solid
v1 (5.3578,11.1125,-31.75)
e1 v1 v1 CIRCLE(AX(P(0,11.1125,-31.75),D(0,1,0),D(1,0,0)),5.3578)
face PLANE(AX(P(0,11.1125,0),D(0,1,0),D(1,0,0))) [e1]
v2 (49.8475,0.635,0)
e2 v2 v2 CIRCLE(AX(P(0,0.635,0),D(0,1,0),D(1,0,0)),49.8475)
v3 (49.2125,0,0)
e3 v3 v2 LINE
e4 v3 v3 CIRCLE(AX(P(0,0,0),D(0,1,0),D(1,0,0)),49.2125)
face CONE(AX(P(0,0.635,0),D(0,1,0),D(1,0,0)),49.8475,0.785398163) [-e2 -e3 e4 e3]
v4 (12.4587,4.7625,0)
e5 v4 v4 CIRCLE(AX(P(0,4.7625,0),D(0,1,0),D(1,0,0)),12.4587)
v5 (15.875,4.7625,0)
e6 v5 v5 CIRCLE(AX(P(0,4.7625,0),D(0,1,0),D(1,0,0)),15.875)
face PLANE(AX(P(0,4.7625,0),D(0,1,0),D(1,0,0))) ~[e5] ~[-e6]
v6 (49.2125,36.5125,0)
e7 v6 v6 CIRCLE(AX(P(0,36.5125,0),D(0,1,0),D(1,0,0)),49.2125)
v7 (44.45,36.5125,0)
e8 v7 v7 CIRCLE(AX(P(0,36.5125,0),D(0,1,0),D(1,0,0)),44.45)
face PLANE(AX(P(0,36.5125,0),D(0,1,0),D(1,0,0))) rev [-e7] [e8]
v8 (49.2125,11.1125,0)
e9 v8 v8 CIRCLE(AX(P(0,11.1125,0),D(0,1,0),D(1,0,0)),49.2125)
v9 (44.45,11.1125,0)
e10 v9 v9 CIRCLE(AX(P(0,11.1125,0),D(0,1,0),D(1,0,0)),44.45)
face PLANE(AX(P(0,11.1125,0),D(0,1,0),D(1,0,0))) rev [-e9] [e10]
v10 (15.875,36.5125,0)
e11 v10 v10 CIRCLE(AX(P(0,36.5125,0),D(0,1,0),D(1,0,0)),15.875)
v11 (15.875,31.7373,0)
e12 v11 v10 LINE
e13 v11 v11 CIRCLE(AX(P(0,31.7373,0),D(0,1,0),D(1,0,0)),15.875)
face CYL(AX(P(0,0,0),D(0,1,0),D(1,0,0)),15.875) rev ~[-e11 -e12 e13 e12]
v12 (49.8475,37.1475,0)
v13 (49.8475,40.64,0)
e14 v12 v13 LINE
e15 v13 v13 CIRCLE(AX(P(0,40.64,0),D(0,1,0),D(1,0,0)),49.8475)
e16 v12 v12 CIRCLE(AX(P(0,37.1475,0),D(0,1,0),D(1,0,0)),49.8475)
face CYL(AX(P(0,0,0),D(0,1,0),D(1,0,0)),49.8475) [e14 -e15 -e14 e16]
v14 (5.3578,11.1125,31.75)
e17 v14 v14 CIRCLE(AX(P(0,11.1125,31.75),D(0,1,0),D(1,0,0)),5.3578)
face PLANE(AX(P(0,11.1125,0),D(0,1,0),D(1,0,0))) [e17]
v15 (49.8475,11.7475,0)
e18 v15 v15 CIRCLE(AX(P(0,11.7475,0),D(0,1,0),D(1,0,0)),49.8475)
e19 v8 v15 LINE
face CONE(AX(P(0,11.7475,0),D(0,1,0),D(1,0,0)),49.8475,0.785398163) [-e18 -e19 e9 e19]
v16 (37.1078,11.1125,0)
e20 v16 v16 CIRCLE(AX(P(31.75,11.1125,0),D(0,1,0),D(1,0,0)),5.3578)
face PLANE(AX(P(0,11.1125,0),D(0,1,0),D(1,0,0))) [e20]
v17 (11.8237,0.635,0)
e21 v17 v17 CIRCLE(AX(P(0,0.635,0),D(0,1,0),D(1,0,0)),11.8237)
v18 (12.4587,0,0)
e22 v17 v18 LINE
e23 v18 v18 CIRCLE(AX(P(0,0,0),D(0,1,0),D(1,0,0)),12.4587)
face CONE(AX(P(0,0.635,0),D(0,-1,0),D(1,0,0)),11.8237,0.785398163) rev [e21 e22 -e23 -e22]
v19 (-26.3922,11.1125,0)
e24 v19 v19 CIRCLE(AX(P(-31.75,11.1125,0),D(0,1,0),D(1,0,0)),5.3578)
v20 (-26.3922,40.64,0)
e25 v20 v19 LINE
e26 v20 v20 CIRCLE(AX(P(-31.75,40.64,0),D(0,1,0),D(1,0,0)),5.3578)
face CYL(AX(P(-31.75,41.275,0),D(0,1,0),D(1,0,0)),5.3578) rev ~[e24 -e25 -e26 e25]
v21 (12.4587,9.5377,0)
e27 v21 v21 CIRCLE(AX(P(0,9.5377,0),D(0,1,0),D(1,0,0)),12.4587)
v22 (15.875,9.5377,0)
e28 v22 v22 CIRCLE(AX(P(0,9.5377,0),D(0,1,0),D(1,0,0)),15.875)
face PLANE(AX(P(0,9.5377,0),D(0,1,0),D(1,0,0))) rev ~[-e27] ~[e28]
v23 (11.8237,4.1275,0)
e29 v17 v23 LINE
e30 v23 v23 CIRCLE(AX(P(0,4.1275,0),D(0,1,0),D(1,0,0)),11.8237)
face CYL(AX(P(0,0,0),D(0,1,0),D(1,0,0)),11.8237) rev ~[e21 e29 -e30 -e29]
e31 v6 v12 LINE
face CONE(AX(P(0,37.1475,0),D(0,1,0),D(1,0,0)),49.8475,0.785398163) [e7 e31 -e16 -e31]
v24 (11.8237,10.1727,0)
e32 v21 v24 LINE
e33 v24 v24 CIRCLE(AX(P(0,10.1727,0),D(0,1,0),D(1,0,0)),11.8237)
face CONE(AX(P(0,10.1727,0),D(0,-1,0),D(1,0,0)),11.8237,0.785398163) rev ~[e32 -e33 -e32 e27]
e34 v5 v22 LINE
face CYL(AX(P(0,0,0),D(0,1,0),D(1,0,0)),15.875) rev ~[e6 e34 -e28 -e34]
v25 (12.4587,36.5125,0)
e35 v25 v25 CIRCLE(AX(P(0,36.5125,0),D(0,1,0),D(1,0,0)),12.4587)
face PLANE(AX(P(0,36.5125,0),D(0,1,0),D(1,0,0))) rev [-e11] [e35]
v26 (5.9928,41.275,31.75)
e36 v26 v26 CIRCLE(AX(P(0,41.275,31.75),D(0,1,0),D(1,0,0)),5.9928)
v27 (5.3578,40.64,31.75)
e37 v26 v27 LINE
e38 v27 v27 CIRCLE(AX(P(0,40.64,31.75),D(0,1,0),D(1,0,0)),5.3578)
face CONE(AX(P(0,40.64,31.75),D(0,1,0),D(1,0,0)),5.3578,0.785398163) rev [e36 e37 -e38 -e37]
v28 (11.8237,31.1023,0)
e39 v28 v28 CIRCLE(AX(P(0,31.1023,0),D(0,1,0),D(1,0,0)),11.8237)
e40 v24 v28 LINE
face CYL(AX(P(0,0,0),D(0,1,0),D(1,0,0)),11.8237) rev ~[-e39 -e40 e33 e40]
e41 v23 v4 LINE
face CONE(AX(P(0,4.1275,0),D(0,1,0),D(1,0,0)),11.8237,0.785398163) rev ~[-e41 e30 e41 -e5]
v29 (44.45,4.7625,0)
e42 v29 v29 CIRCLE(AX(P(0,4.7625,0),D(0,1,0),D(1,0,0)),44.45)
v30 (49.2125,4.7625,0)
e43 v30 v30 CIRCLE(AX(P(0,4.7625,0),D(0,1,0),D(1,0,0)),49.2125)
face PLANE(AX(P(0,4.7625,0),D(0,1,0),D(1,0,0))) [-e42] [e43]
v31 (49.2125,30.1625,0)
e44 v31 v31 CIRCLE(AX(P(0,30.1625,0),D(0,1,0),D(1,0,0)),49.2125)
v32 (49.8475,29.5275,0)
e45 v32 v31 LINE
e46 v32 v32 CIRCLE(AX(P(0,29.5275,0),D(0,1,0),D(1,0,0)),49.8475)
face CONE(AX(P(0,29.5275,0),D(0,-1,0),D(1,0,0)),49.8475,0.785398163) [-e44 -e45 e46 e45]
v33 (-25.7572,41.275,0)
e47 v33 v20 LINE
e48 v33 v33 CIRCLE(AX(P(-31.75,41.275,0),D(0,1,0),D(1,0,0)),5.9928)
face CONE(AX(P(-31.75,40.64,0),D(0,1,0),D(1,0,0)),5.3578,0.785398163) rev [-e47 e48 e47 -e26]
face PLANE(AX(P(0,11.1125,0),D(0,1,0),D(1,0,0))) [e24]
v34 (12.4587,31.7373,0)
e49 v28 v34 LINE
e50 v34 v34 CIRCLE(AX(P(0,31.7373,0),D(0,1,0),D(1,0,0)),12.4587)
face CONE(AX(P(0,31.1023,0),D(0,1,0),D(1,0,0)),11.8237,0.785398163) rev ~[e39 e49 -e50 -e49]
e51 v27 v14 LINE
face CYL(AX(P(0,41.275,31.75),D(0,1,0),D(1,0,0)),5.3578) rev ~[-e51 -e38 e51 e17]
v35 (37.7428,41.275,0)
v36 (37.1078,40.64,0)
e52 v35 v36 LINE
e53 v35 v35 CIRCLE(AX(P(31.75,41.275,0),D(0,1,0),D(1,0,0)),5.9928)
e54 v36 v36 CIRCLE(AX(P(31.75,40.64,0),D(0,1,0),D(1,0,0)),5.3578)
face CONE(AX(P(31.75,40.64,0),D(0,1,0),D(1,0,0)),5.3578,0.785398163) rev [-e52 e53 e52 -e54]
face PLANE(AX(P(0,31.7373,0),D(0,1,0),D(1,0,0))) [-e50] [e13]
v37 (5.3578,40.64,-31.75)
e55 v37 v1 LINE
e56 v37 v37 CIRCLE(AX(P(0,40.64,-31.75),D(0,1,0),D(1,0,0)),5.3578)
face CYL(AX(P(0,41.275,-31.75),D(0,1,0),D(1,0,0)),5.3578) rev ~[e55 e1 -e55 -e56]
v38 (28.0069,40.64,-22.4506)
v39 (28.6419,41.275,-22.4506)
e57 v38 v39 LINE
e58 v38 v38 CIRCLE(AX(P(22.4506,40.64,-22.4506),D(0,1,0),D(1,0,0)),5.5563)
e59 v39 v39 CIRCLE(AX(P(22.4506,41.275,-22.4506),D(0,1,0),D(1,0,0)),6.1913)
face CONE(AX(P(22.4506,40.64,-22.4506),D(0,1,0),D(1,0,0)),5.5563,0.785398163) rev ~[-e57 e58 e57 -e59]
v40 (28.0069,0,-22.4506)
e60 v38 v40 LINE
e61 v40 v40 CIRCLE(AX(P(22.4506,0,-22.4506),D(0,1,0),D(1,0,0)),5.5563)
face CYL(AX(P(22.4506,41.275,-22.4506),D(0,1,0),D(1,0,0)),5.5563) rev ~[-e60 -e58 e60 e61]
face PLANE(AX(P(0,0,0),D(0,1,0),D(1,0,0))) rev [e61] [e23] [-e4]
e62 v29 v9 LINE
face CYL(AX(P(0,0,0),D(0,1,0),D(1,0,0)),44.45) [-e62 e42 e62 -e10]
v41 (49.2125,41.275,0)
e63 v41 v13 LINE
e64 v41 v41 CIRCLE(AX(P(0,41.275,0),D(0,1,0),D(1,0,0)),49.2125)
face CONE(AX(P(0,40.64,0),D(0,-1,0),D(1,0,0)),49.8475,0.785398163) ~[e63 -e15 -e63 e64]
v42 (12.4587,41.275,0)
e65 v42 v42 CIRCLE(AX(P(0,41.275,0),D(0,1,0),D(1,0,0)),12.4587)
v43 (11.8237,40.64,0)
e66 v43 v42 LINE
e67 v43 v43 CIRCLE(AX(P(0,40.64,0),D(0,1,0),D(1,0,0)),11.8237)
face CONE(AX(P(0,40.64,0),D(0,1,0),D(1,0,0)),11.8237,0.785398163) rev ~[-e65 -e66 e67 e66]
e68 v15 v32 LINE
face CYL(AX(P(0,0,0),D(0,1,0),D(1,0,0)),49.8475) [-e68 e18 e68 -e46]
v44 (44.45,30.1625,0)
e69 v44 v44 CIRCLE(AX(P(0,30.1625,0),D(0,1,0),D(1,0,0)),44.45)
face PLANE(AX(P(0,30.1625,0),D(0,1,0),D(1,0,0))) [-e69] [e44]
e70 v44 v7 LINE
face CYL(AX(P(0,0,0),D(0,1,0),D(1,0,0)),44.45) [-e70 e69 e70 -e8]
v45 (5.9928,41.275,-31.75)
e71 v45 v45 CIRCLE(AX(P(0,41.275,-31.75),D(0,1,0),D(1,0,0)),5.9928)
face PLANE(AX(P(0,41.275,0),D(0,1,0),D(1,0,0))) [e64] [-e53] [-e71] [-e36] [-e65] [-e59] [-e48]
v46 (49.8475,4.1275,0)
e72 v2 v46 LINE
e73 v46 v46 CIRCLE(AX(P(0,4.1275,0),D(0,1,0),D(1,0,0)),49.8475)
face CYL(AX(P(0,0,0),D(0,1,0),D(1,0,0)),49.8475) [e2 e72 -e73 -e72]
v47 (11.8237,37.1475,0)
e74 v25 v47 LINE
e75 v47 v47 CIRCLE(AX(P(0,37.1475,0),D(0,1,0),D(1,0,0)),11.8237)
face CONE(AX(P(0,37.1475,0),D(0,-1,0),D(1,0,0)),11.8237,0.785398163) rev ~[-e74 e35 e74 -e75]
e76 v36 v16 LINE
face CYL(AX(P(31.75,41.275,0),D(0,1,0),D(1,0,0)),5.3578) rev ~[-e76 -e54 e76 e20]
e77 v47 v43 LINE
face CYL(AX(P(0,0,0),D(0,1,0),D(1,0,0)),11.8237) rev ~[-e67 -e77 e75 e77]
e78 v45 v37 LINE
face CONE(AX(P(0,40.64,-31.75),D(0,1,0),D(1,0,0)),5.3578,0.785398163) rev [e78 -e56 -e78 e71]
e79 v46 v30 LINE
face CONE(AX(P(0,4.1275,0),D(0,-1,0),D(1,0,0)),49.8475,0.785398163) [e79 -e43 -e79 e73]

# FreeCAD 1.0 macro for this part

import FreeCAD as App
import Part
import Sketcher

V = App.Vector
Q = App.Units.Quantity


def edges_at(feature, points):
    """Names of the edges that pass closest to the given points."""
    edges = feature.Shape.Edges
    near = lambda p: min(range(len(edges)), key=lambda i: edges[i].distToShape(Part.Vertex(*p))[0])
    return sorted({f"Edge{near(p) + 1}" for p in points})

doc = App.newDocument("Part")
body = doc.addObject("PartDesign::Body", "Body")

# Sketch on XY plane
sketch1 = doc.addObject("Sketcher::SketchObject", "Sketch")
body.addObject(sketch1)
sketch1.AttachmentSupport = (doc.XY_Plane, [""])
sketch1.MapMode = "FlatFace"
sketch1.addGeometry([
    Part.LineSegment(V(11.8, 4.8, 0), V(11.8, 0, 0)),  # 0
    Part.LineSegment(V(11.8, 0, 0), V(49.8, 0, 0)),  # 1
    Part.LineSegment(V(49.8, 0, 0), V(49.8, 4.8, 0)),  # 2
    Part.LineSegment(V(49.8, 4.8, 0), V(44.5, 4.8, 0)),  # 3
    Part.LineSegment(V(44.5, 4.8, 0), V(44.5, 11.1, 0)),  # 4
    Part.LineSegment(V(44.5, 11.1, 0), V(49.8, 11.1, 0)),  # 5
    Part.LineSegment(V(49.8, 11.1, 0), V(49.8, 30.2, 0)),  # 6
    Part.LineSegment(V(49.8, 30.2, 0), V(44.5, 30.2, 0)),  # 7
    Part.LineSegment(V(44.5, 30.2, 0), V(44.5, 36.5, 0)),  # 8
    Part.LineSegment(V(44.5, 36.5, 0), V(49.8, 36.5, 0)),  # 9
    Part.LineSegment(V(49.8, 36.5, 0), V(49.8, 41.3, 0)),  # 10
    Part.LineSegment(V(49.8, 41.3, 0), V(11.8, 41.3, 0)),  # 11
    Part.LineSegment(V(11.8, 41.3, 0), V(11.8, 36.5, 0)),  # 12
    Part.LineSegment(V(11.8, 36.5, 0), V(15.9, 36.5, 0)),  # 13
    Part.LineSegment(V(15.9, 36.5, 0), V(15.9, 31.7, 0)),  # 14
    Part.LineSegment(V(15.9, 31.7, 0), V(11.8, 31.7, 0)),  # 15
    Part.LineSegment(V(11.8, 31.7, 0), V(11.8, 9.5, 0)),  # 16
    Part.LineSegment(V(11.8, 9.5, 0), V(15.9, 9.5, 0)),  # 17
    Part.LineSegment(V(15.9, 9.5, 0), V(15.9, 4.8, 0)),  # 18
    Part.LineSegment(V(15.9, 4.8, 0), V(11.8, 4.8, 0)),  # 19
], False)
sketch1.addConstraint([
    Sketcher.Constraint("Coincident", 0, 2, 1, 1),
    Sketcher.Constraint("Coincident", 1, 2, 2, 1),
    Sketcher.Constraint("Coincident", 2, 2, 3, 1),
    Sketcher.Constraint("Coincident", 3, 2, 4, 1),
    Sketcher.Constraint("Coincident", 4, 2, 5, 1),
    Sketcher.Constraint("Coincident", 5, 2, 6, 1),
    Sketcher.Constraint("Coincident", 6, 2, 7, 1),
    Sketcher.Constraint("Coincident", 7, 2, 8, 1),
    Sketcher.Constraint("Coincident", 8, 2, 9, 1),
    Sketcher.Constraint("Coincident", 9, 2, 10, 1),
    Sketcher.Constraint("Coincident", 10, 2, 11, 1),
    Sketcher.Constraint("Coincident", 11, 2, 12, 1),
    Sketcher.Constraint("Coincident", 12, 2, 13, 1),
    Sketcher.Constraint("Coincident", 13, 2, 14, 1),
    Sketcher.Constraint("Coincident", 14, 2, 15, 1),
    Sketcher.Constraint("Coincident", 15, 2, 16, 1),
    Sketcher.Constraint("Coincident", 16, 2, 17, 1),
    Sketcher.Constraint("Coincident", 17, 2, 18, 1),
    Sketcher.Constraint("Coincident", 18, 2, 19, 1),
    Sketcher.Constraint("Coincident", 19, 2, 0, 1),
    Sketcher.Constraint("Vertical", 0),
    Sketcher.Constraint("Horizontal", 1),
    Sketcher.Constraint("Vertical", 2),
    Sketcher.Constraint("Horizontal", 3),
    Sketcher.Constraint("Vertical", 4),
    Sketcher.Constraint("Horizontal", 5),
    Sketcher.Constraint("Vertical", 6),
    Sketcher.Constraint("Horizontal", 7),
    Sketcher.Constraint("Vertical", 8),
    Sketcher.Constraint("Horizontal", 9),
    Sketcher.Constraint("Vertical", 10),
    Sketcher.Constraint("Horizontal", 11),
    Sketcher.Constraint("Vertical", 12),
    Sketcher.Constraint("Horizontal", 13),
    Sketcher.Constraint("Vertical", 14),
    Sketcher.Constraint("Horizontal", 15),
    Sketcher.Constraint("Vertical", 16),
    Sketcher.Constraint("Horizontal", 17),
    Sketcher.Constraint("Vertical", 18),
    Sketcher.Constraint("Horizontal", 19),
    Sketcher.Constraint("PointOnObject", 0, 2, -1),
    Sketcher.Constraint("Horizontal", 9, 2, 12, 2),
    Sketcher.Constraint("Horizontal", 3, 2, 18, 2),
    Sketcher.Constraint("Vertical", 2, 2, 5, 2),
    Sketcher.Constraint("Vertical", 4, 2, 7, 2),
    Sketcher.Constraint("Vertical", 6, 2, 9, 2),
    Sketcher.Constraint("Vertical", 0, 2, 11, 2),
    Sketcher.Constraint("Vertical", 12, 2, 15, 2),
    Sketcher.Constraint("Vertical", 14, 2, 17, 2),
    Sketcher.Constraint("Equal", 4, 8),
    Sketcher.Constraint("Equal", 2, 10),
    Sketcher.Constraint("Equal", 14, 18),
    Sketcher.Constraint("DistanceY", 4, 1, 4, 2, Q("0.25 in")),
    Sketcher.Constraint("DistanceY", 6, 1, 6, 2, Q("0.75 in")),
    Sketcher.Constraint("DistanceY", 0, 2, 0, 1, Q("0.1875 in")),
    Sketcher.Constraint("DistanceY", 14, 2, 14, 1, Q("0.188 in")),
    Sketcher.Constraint("DistanceX", -1, 1, 3, 2, Q("1.75 in")),
    Sketcher.Constraint("DistanceX", 3, 2, 3, 1, Q("0.2125 in")),
    Sketcher.Constraint("DistanceX", -1, 1, 13, 2, Q("0.625 in")),
    Sketcher.Constraint("DistanceX", -1, 1, 0, 2, Q("0.4655 in")),
])
revolution = doc.addObject("PartDesign::Revolution", "Revolution")
body.addObject(revolution)
revolution.Profile = sketch1
revolution.ReferenceAxis = (sketch1, ["V_Axis"])
revolution.Angle = 360
doc.recompute()

chamfer = doc.addObject("PartDesign::Chamfer", "Chamfer")
body.addObject(chamfer)
chamfer.Base = (revolution, edges_at(revolution, [
    (-49.847, 0, 0),
    (-49.847, 4.763, 0),
    (-49.847, 11.113, 0),
    (-49.847, 30.163, 0),
    (-49.847, 36.513, 0),
    (-49.847, 41.275, 0),
    (-11.824, 41.275, 0),
    (-11.824, 36.513, 0),
    (-11.824, 31.737, 0),
    (-11.824, 9.538, 0),
    (-11.824, 4.763, 0),
    (-11.824, 0, 0),
]))
chamfer.Size = Q("0.025 in")

# Sketch on XZ plane
sketch2 = doc.addObject("Sketcher::SketchObject", "Sketch001")
body.addObject(sketch2)
sketch2.AttachmentSupport = (doc.XZ_Plane, [""])
sketch2.MapMode = "FlatFace"
sketch2.AttachmentOffset = App.Placement(V(0, 0, -1.625 * 25.4), App.Rotation())
sketch2.addGeometry([
    Part.Circle(V(0, -32, 0), V(0, 0, 1), 5),
    Part.Circle(V(-32, 0, 0), V(0, 0, 1), 5),
    Part.Circle(V(0, 32, 0), V(0, 0, 1), 5),
    Part.Circle(V(32, 0, 0), V(0, 0, 1), 5),
], False)
sketch2.addConstraint([
    Sketcher.Constraint("Equal", 0, 1),
    Sketcher.Constraint("Equal", 1, 2),
    Sketcher.Constraint("Equal", 2, 3),
    Sketcher.Constraint("Symmetric", 0, 3, 2, 3, -1, 1),
    Sketcher.Constraint("Symmetric", 1, 3, 3, 3, -1, 1),
    Sketcher.Constraint("PointOnObject", 0, 3, -2),
    Sketcher.Constraint("PointOnObject", 1, 3, -1),
    Sketcher.Constraint("Diameter", 0, Q("0.421874 in")),
    Sketcher.Constraint("DistanceY", 0, 3, -1, 1, Q("1.25 in")),
    Sketcher.Constraint("DistanceX", 1, 3, -1, 1, Q("1.25 in")),
])
pocket1 = doc.addObject("PartDesign::Pocket", "Pocket")
body.addObject(pocket1)
pocket1.Profile = sketch2
pocket1.Length = Q("1.1875 in")
pocket1.Reversed = True

# Sketch on XZ plane
sketch3 = doc.addObject("Sketcher::SketchObject", "Sketch002")
body.addObject(sketch3)
sketch3.AttachmentSupport = (doc.XZ_Plane, [""])
sketch3.MapMode = "FlatFace"
sketch3.AttachmentOffset = App.Placement(V(0, 0, -1.625 * 25.4), App.Rotation())
sketch3.addGeometry(Part.Circle(V(22, -22, 0), V(0, 0, 1), 6), False)
sketch3.addConstraint([
    Sketcher.Constraint("Diameter", 0, Q("0.4375 in")),
    Sketcher.Constraint("DistanceX", -1, 1, 0, 3, Q("22.4506 mm")),
    Sketcher.Constraint("DistanceY", 0, 3, -1, 1, Q("22.4506 mm")),
])
pocket2 = doc.addObject("PartDesign::Pocket", "Pocket001")
body.addObject(pocket2)
pocket2.Profile = sketch3
pocket2.Length = Q("13.875 in")
pocket2.Reversed = True
doc.recompute()

chamfer2 = doc.addObject("PartDesign::Chamfer", "Chamfer001")
body.addObject(chamfer2)
chamfer2.Base = (pocket2, edges_at(pocket2, [
    (-37.108, 41.275, 0),
    (-5.358, 41.275, -31.75),
    (16.894, 41.275, -22.451),
    (26.392, 41.275, 0),
    (-5.358, 41.275, 31.75),
]))
chamfer2.Size = Q("0.025 in")

doc.recompute()
